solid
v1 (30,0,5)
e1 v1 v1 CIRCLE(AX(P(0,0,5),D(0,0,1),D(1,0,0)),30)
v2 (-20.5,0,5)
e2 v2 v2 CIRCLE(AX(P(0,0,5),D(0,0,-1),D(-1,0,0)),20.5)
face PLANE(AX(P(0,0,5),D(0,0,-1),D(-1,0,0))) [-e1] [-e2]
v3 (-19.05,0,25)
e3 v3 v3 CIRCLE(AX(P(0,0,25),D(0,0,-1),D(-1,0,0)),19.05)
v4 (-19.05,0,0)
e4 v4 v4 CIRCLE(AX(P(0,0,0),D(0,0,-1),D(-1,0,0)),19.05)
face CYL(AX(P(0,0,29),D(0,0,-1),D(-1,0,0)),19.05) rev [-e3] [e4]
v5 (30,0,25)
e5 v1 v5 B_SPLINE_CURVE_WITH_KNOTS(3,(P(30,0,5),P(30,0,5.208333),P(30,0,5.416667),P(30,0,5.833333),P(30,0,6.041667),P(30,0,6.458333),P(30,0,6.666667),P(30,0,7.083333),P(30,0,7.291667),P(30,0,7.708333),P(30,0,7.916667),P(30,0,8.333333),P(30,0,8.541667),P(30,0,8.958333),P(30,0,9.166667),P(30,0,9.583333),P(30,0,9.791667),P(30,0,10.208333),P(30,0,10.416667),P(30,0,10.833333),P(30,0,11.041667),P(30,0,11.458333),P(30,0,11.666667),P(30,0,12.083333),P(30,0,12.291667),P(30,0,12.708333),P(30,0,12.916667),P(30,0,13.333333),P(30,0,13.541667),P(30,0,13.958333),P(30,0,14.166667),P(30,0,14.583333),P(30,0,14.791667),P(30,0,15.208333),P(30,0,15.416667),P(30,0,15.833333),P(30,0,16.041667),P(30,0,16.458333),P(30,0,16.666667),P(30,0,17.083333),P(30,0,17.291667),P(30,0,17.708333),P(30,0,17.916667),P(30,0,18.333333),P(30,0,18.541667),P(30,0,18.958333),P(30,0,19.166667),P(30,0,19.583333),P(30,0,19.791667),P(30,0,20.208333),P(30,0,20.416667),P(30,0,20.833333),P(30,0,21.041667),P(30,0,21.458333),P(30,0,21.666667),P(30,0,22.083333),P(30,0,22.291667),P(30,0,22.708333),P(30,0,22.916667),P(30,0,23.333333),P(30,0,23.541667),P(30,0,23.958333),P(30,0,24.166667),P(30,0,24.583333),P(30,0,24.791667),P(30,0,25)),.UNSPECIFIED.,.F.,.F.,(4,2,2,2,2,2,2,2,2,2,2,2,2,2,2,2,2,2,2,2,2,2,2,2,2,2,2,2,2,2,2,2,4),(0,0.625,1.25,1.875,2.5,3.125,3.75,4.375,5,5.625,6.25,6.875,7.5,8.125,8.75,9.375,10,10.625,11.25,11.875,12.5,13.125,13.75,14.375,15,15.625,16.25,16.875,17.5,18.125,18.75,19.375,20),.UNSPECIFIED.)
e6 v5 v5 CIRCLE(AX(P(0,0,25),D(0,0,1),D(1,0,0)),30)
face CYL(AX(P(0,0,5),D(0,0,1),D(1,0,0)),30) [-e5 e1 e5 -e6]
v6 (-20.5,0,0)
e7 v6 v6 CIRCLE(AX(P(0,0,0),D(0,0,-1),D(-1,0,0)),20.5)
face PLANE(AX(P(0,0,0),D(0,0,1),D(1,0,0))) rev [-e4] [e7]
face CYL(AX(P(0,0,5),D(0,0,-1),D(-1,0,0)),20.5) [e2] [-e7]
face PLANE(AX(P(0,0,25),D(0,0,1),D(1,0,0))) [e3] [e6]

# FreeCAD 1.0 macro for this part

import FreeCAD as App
import Part
import Sketcher

V = App.Vector
Q = App.Units.Quantity

doc = App.newDocument("Part")
body = doc.addObject("PartDesign::Body", "Body")

# Sketch on XY plane
sketch1 = body.newObject("Sketcher::SketchObject", "Sketch")
sketch1.AttachmentSupport = (doc.getObject("XY_Plane"), [""])
sketch1.MapMode = "FlatFace"
sketch1.addGeometry(Part.Circle(V(0, 0, 0), V(0, 0, 1), 23.05), False)
sketch1.addConstraint([
    Sketcher.Constraint("Coincident", 0, 3, -1, 1),
    Sketcher.Constraint("Diameter", 0, Q("46.1 mm")),
])
pad1 = body.newObject("PartDesign::Pad", "Pad")
pad1.Profile = sketch1
pad1.Length = 25

# Sketch on XY plane
sketch2 = body.newObject("Sketcher::SketchObject", "Sketch001")
sketch2.AttachmentSupport = (doc.getObject("XY_Plane"), [""])
sketch2.MapMode = "FlatFace"
sketch2.addGeometry(Part.Circle(V(0, 0, 0), V(0, 0, 1), 19.05), False)
sketch2.addConstraint([
    Sketcher.Constraint("Coincident", 0, 3, -1, 1),
    Sketcher.Constraint("Diameter", 0, Q("38.1 mm")),
])
pocket1 = body.newObject("PartDesign::Pocket", "Pocket")
pocket1.Profile = sketch2
pocket1.Length = 29
pocket1.Reversed = True

# Sketch on XY plane
sketch3 = body.newObject("Sketcher::SketchObject", "Sketch002")
sketch3.AttachmentSupport = (doc.getObject("XY_Plane"), [""])
sketch3.MapMode = "FlatFace"
sketch3.addGeometry([
    Part.Circle(V(0, 0, 0), V(0, 0, 1), 23.05),
    Part.Circle(V(0, 0, 0), V(0, 0, 1), 20.5),
], False)
sketch3.addConstraint([
    Sketcher.Constraint("Coincident", 0, 3, -1, 1),
    Sketcher.Constraint("Coincident", 1, 3, -1, 1),
    Sketcher.Constraint("Diameter", 1, Q("41 mm")),
    Sketcher.Constraint("Diameter", 0, Q("46.1 mm")),
])
pocket2 = body.newObject("PartDesign::Pocket", "Pocket001")
pocket2.Profile = sketch3
pocket2.Length = 5
pocket2.Reversed = True

# Sketch on XY plane
sketch4 = body.newObject("Sketcher::SketchObject", "Sketch003")
sketch4.AttachmentSupport = (doc.getObject("XY_Plane"), [""])
sketch4.MapMode = "FlatFace"
sketch4.AttachmentOffset = App.Placement(V(0, 0, 25), App.Rotation())
sketch4.addGeometry(Part.Circle(V(0, 0, 0), V(0, 0, 1), 30), False)
sketch4.addConstraint([
    Sketcher.Constraint("Coincident", 0, 3, -1, 1),
    Sketcher.Constraint("Diameter", 0, Q("60 mm")),
])
pad2 = body.newObject("PartDesign::Pad", "Pad001")
pad2.Profile = sketch4
pad2.Length = 20
pad2.Reversed = True

# Sketch on XY plane
sketch5 = body.newObject("Sketcher::SketchObject", "Sketch004")
sketch5.AttachmentSupport = (doc.getObject("XY_Plane"), [""])
sketch5.MapMode = "FlatFace"
sketch5.AttachmentOffset = App.Placement(V(0, 0, 5), App.Rotation())
sketch5.addGeometry(Part.Circle(V(0, 0, 0), V(0, 0, 1), 19.05), False)
sketch5.addConstraint([
    Sketcher.Constraint("Coincident", 0, 3, -1, 1),
    Sketcher.Constraint("Diameter", 0, Q("38.1 mm")),
])
pocket3 = body.newObject("PartDesign::Pocket", "Pocket002")
pocket3.Profile = sketch5
pocket3.Length = 20
pocket3.Reversed = True

doc.recompute()
